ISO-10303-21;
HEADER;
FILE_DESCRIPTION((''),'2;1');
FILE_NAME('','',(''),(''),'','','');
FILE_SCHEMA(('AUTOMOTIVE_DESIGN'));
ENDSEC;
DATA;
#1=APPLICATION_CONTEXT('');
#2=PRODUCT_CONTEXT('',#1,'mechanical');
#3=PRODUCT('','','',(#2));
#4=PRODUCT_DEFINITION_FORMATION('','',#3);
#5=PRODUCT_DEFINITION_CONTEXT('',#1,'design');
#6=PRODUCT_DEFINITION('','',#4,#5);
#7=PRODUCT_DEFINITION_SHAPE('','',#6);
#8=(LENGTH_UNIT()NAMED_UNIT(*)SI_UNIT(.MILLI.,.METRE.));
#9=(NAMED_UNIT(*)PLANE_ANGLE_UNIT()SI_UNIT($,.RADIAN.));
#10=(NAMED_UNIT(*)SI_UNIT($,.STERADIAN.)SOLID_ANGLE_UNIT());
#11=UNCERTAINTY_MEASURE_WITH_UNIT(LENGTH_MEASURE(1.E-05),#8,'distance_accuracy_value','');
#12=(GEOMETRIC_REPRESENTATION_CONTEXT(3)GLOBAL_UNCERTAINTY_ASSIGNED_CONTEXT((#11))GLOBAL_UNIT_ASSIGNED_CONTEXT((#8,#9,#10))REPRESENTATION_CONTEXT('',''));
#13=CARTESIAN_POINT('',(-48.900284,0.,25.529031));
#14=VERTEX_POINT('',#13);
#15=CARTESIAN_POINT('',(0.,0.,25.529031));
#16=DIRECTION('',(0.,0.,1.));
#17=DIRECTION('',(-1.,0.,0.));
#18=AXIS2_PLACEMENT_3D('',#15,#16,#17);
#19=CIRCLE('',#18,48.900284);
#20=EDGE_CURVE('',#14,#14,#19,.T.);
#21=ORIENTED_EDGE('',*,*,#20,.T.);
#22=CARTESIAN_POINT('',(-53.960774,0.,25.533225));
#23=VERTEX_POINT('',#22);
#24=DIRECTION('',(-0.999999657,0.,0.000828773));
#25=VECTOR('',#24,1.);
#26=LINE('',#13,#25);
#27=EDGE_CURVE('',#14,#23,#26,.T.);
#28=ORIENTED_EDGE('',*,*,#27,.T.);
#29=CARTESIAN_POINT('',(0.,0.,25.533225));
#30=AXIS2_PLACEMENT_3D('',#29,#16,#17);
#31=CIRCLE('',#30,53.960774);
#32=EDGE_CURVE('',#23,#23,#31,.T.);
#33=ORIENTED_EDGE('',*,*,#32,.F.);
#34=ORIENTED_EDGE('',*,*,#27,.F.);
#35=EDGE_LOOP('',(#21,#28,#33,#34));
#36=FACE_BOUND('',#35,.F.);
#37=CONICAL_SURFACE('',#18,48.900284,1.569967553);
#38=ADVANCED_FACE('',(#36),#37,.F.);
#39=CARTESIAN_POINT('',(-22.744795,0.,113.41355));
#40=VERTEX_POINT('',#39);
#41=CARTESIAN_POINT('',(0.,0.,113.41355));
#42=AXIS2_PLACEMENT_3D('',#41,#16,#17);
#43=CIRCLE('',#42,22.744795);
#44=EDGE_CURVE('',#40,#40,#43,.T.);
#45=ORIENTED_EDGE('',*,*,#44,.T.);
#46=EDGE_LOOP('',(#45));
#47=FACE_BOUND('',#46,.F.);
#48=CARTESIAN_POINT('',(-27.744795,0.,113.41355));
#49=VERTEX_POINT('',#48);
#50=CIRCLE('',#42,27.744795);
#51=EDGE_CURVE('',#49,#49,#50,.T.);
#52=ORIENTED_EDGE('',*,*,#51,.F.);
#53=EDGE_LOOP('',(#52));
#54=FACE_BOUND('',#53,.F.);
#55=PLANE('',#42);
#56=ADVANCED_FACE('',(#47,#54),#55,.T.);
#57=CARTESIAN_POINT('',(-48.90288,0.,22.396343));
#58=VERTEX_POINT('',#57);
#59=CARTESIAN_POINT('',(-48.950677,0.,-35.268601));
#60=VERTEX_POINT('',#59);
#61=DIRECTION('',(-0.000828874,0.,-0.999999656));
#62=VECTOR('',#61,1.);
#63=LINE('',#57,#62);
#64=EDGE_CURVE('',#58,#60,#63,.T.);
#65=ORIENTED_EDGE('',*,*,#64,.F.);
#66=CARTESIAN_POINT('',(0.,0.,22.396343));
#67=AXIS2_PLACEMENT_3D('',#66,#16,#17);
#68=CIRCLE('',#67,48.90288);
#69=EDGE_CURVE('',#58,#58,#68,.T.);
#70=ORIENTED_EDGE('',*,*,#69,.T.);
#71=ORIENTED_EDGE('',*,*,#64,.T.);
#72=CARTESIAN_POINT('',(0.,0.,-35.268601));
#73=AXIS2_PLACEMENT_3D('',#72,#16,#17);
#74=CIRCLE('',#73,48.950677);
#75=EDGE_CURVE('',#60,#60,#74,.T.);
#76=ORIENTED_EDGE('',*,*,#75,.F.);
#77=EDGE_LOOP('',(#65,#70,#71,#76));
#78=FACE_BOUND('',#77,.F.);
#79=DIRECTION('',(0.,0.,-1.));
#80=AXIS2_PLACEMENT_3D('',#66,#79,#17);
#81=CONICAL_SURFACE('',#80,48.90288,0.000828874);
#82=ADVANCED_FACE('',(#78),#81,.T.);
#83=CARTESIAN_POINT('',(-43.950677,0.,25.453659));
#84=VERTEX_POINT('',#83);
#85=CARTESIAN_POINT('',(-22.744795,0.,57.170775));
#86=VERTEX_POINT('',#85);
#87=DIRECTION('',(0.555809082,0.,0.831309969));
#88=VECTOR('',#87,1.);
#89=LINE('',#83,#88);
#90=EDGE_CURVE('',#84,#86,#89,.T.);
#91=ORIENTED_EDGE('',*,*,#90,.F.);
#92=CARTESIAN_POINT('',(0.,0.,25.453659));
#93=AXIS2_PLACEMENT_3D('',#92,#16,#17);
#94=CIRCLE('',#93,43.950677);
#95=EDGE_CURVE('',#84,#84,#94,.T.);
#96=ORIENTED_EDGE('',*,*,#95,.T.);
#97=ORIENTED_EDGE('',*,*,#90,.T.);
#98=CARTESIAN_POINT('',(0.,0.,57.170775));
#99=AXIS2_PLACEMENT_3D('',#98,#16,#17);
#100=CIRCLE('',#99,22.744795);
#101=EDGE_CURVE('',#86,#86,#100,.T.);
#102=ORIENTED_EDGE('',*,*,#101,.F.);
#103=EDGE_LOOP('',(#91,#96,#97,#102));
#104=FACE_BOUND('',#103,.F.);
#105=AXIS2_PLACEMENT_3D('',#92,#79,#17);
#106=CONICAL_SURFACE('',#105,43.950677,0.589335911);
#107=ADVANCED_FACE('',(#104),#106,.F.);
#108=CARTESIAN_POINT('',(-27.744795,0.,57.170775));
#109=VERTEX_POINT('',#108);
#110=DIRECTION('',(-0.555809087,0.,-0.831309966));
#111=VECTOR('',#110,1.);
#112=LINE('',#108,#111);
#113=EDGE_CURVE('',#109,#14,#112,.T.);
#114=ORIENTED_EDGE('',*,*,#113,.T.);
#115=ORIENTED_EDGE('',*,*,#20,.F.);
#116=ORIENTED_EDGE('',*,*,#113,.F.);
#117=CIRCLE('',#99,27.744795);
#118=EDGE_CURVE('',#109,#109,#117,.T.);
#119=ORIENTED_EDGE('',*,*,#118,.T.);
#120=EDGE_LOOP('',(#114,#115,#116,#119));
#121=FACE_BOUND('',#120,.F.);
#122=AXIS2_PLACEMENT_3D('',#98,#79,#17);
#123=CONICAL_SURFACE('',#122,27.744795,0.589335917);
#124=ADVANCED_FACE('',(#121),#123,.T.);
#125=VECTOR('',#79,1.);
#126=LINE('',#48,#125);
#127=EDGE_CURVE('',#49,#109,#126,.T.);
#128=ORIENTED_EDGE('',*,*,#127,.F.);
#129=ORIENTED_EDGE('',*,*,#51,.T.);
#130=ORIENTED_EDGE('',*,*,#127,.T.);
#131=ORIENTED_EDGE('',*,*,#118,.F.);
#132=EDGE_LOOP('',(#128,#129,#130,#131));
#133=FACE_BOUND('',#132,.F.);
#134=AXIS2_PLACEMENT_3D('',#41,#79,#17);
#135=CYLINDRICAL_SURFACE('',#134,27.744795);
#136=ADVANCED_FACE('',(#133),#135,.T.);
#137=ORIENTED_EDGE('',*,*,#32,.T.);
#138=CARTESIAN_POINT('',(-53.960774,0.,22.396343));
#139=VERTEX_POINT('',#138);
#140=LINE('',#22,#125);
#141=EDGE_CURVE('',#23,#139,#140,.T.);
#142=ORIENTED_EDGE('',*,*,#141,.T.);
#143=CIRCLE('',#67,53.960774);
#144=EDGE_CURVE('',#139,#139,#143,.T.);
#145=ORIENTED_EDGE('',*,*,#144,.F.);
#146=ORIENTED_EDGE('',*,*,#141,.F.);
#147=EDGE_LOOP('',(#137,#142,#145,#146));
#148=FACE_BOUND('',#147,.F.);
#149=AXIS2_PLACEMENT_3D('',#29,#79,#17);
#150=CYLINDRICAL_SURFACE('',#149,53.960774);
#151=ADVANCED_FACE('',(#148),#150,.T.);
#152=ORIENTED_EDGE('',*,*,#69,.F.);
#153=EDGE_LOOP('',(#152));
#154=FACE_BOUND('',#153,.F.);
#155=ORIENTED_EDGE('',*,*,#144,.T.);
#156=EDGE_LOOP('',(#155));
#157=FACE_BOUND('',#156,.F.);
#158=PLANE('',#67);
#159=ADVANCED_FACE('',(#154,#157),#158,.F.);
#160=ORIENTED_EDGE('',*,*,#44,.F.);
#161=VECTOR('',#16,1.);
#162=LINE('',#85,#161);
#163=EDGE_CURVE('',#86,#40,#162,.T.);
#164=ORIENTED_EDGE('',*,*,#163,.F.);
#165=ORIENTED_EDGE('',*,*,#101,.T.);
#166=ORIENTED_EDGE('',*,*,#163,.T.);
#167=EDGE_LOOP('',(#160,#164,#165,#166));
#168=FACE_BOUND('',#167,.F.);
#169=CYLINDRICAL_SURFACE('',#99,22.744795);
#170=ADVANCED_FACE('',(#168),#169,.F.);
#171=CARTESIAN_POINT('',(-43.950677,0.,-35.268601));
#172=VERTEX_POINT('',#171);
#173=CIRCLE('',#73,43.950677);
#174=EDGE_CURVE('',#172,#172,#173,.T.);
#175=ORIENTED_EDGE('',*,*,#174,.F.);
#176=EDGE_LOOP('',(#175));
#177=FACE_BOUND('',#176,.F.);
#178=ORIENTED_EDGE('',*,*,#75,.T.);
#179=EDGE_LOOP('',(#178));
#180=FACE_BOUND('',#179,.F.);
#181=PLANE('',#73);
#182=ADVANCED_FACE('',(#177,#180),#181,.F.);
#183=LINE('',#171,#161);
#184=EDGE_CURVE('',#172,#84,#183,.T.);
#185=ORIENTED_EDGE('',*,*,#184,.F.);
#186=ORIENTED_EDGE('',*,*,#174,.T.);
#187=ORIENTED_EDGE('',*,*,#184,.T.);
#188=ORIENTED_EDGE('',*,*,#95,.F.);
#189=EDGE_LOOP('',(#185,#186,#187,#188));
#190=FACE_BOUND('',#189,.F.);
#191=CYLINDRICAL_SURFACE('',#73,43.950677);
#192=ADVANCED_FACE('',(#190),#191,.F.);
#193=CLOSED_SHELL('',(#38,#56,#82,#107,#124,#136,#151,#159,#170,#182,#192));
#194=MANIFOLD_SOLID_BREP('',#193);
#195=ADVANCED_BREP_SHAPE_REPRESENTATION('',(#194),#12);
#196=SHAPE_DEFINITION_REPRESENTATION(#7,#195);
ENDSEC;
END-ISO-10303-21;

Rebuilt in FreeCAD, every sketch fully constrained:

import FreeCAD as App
import Part
import Sketcher

doc = App.newDocument("Part")
body = doc.addObject("PartDesign::Body", "Body")

# Sketch on XZ plane
sketch1 = body.newObject("Sketcher::SketchObject", "Sketch")
sketch1.AttachmentSupport = (doc.getObject("XZ_Plane"), [""])
sketch1.MapMode = "FlatFace"
sketch1.addGeometry([
    Part.LineSegment(App.Vector(-22.744795, 113.41355, 0), App.Vector(-27.744795, 113.41355, 0)),  # 0
    Part.LineSegment(App.Vector(-27.744795, 113.41355, 0), App.Vector(-27.744795, 57.170775, 0)),  # 1
    Part.LineSegment(App.Vector(-27.744795, 57.170775, 0), App.Vector(-48.900284, 25.529031, 0)),  # 2
    Part.LineSegment(App.Vector(-48.900284, 25.529031, 0), App.Vector(-53.960774, 25.533225, 0)),  # 3
    Part.LineSegment(App.Vector(-53.960774, 25.533225, 0), App.Vector(-53.960774, 22.396343, 0)),  # 4
    Part.LineSegment(App.Vector(-53.960774, 22.396343, 0), App.Vector(-48.90288, 22.396343, 0)),  # 5
    Part.LineSegment(App.Vector(-48.90288, 22.396343, 0), App.Vector(-48.950677, -35.268601, 0)),  # 6
    Part.LineSegment(App.Vector(-48.950677, -35.268601, 0), App.Vector(-43.950677, -35.268601, 0)),  # 7
    Part.LineSegment(App.Vector(-43.950677, -35.268601, 0), App.Vector(-43.950677, 25.453659, 0)),  # 8
    Part.LineSegment(App.Vector(-43.950677, 25.453659, 0), App.Vector(-22.744795, 57.170775, 0)),  # 9
    Part.LineSegment(App.Vector(-22.744795, 57.170775, 0), App.Vector(-22.744795, 113.41355, 0)),  # 10
], False)
sketch1.addConstraint([
    Sketcher.Constraint("Coincident", 0, 2, 1, 1),
    Sketcher.Constraint("Coincident", 1, 2, 2, 1),
    Sketcher.Constraint("Coincident", 2, 2, 3, 1),
    Sketcher.Constraint("Coincident", 3, 2, 4, 1),
    Sketcher.Constraint("Coincident", 4, 2, 5, 1),
    Sketcher.Constraint("Coincident", 5, 2, 6, 1),
    Sketcher.Constraint("Coincident", 6, 2, 7, 1),
    Sketcher.Constraint("Coincident", 7, 2, 8, 1),
    Sketcher.Constraint("Coincident", 8, 2, 9, 1),
    Sketcher.Constraint("Coincident", 9, 2, 10, 1),
    Sketcher.Constraint("Coincident", 10, 2, 0, 1),
    Sketcher.Constraint("Horizontal", 0),
    Sketcher.Constraint("Vertical", 1),
    Sketcher.Constraint("Vertical", 4),
    Sketcher.Constraint("Horizontal", 5),
    Sketcher.Constraint("Horizontal", 7),
    Sketcher.Constraint("Vertical", 8),
    Sketcher.Constraint("Vertical", 10),
    Sketcher.Constraint("Perpendicular", 3, 6),
    Sketcher.Constraint("Parallel", 2, 9),
    Sketcher.Constraint("Horizontal", 1, 2, 9, 2),
    Sketcher.Constraint("Equal", 0, 7),
    Sketcher.Constraint("DistanceX", 0, 2, 0, 1, 5.0),
    Sketcher.Constraint("DistanceY", 4, 2, 4, 1, 3.136882),
    Sketcher.Constraint("DistanceY", 8, 1, 8, 2, 60.72226),
    Sketcher.Constraint("DistanceY", 6, 2, -1, 1, 35.268601),
    Sketcher.Constraint("Distance", 2, 38.06251),
    Sketcher.Constraint("Distance", 3, 5.060492),
    Sketcher.Constraint("DistanceX", 5, 1, 5, 2, 5.057894),
    Sketcher.Constraint("DistanceY", 1, 2, 1, 1, 56.242775),
    Sketcher.Constraint("DistanceY", -1, 1, 0, 2, 113.41355),
    Sketcher.Constraint("DistanceY", -1, 1, 2, 2, 25.529031),
    Sketcher.Constraint("DistanceX", 5, 2, -1, 1, 48.90288),
])
revolution = body.newObject("PartDesign::Revolution", "Revolution")
revolution.Profile = sketch1
revolution.ReferenceAxis = (sketch1, ["V_Axis"])
revolution.Angle = 360

doc.recompute()
